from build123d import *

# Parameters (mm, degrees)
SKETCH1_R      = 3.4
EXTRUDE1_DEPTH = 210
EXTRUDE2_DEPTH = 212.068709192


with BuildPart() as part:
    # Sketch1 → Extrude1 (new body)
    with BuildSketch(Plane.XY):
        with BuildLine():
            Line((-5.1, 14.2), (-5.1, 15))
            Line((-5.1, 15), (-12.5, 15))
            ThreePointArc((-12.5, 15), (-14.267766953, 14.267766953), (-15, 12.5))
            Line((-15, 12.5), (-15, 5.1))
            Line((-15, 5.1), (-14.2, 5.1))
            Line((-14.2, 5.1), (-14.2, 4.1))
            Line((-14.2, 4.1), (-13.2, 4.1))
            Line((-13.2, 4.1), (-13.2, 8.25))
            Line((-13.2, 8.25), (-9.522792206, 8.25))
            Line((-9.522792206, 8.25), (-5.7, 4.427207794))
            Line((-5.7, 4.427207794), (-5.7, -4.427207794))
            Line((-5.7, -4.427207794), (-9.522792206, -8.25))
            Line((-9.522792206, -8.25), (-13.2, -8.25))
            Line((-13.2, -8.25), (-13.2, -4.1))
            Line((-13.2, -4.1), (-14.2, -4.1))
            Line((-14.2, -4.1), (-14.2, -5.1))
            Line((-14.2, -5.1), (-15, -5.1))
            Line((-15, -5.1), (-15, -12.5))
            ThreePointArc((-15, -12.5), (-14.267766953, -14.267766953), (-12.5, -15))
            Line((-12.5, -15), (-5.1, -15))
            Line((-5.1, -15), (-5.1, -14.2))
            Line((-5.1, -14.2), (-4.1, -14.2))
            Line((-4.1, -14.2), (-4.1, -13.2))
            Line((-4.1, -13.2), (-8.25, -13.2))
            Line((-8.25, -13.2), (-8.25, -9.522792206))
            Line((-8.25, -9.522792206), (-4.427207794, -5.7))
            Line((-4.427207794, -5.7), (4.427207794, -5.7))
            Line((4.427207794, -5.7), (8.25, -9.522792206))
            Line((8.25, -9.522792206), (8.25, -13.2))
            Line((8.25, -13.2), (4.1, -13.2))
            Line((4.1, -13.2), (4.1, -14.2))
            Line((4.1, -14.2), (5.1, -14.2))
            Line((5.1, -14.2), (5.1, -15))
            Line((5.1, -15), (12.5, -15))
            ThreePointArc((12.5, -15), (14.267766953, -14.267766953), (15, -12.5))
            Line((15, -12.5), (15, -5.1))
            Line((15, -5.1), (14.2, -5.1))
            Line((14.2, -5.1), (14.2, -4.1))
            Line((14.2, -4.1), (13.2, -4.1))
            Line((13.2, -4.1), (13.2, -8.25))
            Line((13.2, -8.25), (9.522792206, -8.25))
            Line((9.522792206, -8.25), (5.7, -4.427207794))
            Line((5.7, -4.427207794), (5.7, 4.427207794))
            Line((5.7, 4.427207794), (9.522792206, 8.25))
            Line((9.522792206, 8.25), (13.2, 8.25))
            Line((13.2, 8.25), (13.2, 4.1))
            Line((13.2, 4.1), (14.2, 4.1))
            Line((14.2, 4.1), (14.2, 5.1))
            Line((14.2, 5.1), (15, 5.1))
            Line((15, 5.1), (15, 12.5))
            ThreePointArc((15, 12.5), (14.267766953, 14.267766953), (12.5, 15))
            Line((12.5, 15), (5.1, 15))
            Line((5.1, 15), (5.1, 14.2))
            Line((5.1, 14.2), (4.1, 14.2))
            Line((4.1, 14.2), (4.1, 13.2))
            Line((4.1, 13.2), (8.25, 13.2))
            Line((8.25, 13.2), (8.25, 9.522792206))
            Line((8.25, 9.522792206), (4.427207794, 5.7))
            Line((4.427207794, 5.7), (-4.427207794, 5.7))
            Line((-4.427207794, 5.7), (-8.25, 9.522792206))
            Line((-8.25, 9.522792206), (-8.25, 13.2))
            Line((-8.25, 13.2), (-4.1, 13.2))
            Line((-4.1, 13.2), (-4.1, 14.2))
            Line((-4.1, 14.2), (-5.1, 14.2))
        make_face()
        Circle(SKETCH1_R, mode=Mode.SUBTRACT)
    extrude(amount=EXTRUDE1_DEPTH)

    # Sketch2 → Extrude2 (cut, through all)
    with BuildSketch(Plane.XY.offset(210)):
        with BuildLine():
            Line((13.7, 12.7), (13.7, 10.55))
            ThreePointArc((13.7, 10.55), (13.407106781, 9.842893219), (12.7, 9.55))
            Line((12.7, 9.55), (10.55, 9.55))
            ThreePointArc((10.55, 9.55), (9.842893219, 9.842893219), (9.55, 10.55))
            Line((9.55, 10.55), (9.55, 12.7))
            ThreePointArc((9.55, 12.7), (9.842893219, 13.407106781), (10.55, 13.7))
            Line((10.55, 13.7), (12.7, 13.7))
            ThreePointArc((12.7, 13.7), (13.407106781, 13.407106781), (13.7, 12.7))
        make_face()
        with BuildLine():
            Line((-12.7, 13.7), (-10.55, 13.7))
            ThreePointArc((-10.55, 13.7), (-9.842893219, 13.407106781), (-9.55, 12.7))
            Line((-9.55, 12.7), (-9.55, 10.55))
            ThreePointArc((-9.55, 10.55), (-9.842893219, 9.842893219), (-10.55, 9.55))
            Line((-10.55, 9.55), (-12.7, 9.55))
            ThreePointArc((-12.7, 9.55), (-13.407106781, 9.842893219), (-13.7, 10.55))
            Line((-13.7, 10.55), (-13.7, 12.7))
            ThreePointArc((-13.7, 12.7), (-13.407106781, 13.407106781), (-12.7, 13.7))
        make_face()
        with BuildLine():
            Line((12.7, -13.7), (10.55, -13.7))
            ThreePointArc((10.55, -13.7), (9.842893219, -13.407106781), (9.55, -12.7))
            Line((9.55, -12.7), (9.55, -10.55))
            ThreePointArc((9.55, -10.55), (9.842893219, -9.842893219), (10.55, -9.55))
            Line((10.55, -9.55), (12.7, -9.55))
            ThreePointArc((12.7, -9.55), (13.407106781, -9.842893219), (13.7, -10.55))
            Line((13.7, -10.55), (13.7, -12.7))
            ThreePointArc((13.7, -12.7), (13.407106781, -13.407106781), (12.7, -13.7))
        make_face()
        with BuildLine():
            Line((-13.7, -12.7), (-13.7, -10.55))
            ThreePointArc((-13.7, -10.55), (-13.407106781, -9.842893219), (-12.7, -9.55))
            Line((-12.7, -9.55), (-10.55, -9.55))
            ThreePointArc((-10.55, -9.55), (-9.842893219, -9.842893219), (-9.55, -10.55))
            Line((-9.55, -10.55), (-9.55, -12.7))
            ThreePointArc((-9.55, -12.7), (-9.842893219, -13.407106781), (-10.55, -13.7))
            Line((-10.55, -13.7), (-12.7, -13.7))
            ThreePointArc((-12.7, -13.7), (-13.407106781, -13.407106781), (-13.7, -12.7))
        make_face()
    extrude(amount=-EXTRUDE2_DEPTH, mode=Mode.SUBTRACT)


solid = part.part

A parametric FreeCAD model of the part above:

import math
import FreeCAD as App
import Part
import Sketcher

doc = App.newDocument("Part")
params = doc.addObject("Spreadsheet::Sheet", "Params")
for row, (alias, value) in enumerate([
    ("sketch1_diameter", "6.8 mm"),
    ("sketch1_radius", "2.5 mm"),
    ("sketch1_width", "1 mm"),
    ("sketch1_width2", "7.4 mm"),
    ("sketch1_width3", "0.8 mm"),
    ("pad1_length", "210 mm"),
    ("sketch2_radius", "1 mm"),
    ("sketch2_width", "2.15 mm"),
], start=1):
    params.set(f"A{row}", alias)
    params.set(f"B{row}", "=" + value)
    params.setAlias(f"B{row}", alias)

body = doc.addObject("PartDesign::Body", "Body")

# Sketch on XY plane
sketch1 = doc.addObject("Sketcher::SketchObject", "Sketch")
body.addObject(sketch1)
sketch1.AttachmentSupport = (doc.XY_Plane, [""])
sketch1.MapMode = "FlatFace"
sketch1.addGeometry(Part.LineSegment(App.Vector(-5.1, 14.2, 0), App.Vector(-5.1, 15, 0)), False)
sketch1.addGeometry(Part.LineSegment(App.Vector(-5.1, 15, 0), App.Vector(-12.5, 15, 0)), False)
sketch1.addGeometry(Part.ArcOfCircle(Part.Circle(App.Vector(-12.5, 12.5, 0), App.Vector(0, 0, 1), 2.5), math.radians(90), math.radians(180)), False)
sketch1.addGeometry(Part.LineSegment(App.Vector(-15, 12.5, 0), App.Vector(-15, 5.1, 0)), False)
sketch1.addGeometry(Part.LineSegment(App.Vector(-15, 5.1, 0), App.Vector(-14.2, 5.1, 0)), False)
sketch1.addGeometry(Part.LineSegment(App.Vector(-14.2, 5.1, 0), App.Vector(-14.2, 4.1, 0)), False)
sketch1.addGeometry(Part.LineSegment(App.Vector(-14.2, 4.1, 0), App.Vector(-13.2, 4.1, 0)), False)
sketch1.addGeometry(Part.LineSegment(App.Vector(-13.2, 4.1, 0), App.Vector(-13.2, 8.25, 0)), False)
sketch1.addGeometry(Part.LineSegment(App.Vector(-13.2, 8.25, 0), App.Vector(-9.522792, 8.25, 0)), False)
sketch1.addGeometry(Part.LineSegment(App.Vector(-9.522792, 8.25, 0), App.Vector(-5.7, 4.427208, 0)), False)
sketch1.addGeometry(Part.LineSegment(App.Vector(-5.7, 4.427208, 0), App.Vector(-5.7, -4.427208, 0)), False)
sketch1.addGeometry(Part.LineSegment(App.Vector(-5.7, -4.427208, 0), App.Vector(-9.522792, -8.25, 0)), False)
sketch1.addGeometry(Part.LineSegment(App.Vector(-9.522792, -8.25, 0), App.Vector(-13.2, -8.25, 0)), False)
sketch1.addGeometry(Part.LineSegment(App.Vector(-13.2, -8.25, 0), App.Vector(-13.2, -4.1, 0)), False)
sketch1.addGeometry(Part.LineSegment(App.Vector(-13.2, -4.1, 0), App.Vector(-14.2, -4.1, 0)), False)
sketch1.addGeometry(Part.LineSegment(App.Vector(-14.2, -4.1, 0), App.Vector(-14.2, -5.1, 0)), False)
sketch1.addGeometry(Part.LineSegment(App.Vector(-14.2, -5.1, 0), App.Vector(-15, -5.1, 0)), False)
sketch1.addGeometry(Part.LineSegment(App.Vector(-15, -5.1, 0), App.Vector(-15, -12.5, 0)), False)
sketch1.addGeometry(Part.ArcOfCircle(Part.Circle(App.Vector(-12.5, -12.5, 0), App.Vector(0, 0, 1), 2.5), math.radians(180), math.radians(270)), False)
sketch1.addGeometry(Part.LineSegment(App.Vector(-12.5, -15, 0), App.Vector(-5.1, -15, 0)), False)
sketch1.addGeometry(Part.LineSegment(App.Vector(-5.1, -15, 0), App.Vector(-5.1, -14.2, 0)), False)
sketch1.addGeometry(Part.LineSegment(App.Vector(-5.1, -14.2, 0), App.Vector(-4.1, -14.2, 0)), False)
sketch1.addGeometry(Part.LineSegment(App.Vector(-4.1, -14.2, 0), App.Vector(-4.1, -13.2, 0)), False)
sketch1.addGeometry(Part.LineSegment(App.Vector(-4.1, -13.2, 0), App.Vector(-8.25, -13.2, 0)), False)
sketch1.addGeometry(Part.LineSegment(App.Vector(-8.25, -13.2, 0), App.Vector(-8.25, -9.522792, 0)), False)
sketch1.addGeometry(Part.LineSegment(App.Vector(-8.25, -9.522792, 0), App.Vector(-4.427208, -5.7, 0)), False)
sketch1.addGeometry(Part.LineSegment(App.Vector(-4.427208, -5.7, 0), App.Vector(4.427208, -5.7, 0)), False)
sketch1.addGeometry(Part.LineSegment(App.Vector(4.427208, -5.7, 0), App.Vector(8.25, -9.522792, 0)), False)
sketch1.addGeometry(Part.LineSegment(App.Vector(8.25, -9.522792, 0), App.Vector(8.25, -13.2, 0)), False)
sketch1.addGeometry(Part.LineSegment(App.Vector(8.25, -13.2, 0), App.Vector(4.1, -13.2, 0)), False)
sketch1.addGeometry(Part.LineSegment(App.Vector(4.1, -13.2, 0), App.Vector(4.1, -14.2, 0)), False)
sketch1.addGeometry(Part.LineSegment(App.Vector(4.1, -14.2, 0), App.Vector(5.1, -14.2, 0)), False)
sketch1.addGeometry(Part.LineSegment(App.Vector(5.1, -14.2, 0), App.Vector(5.1, -15, 0)), False)
sketch1.addGeometry(Part.LineSegment(App.Vector(5.1, -15, 0), App.Vector(12.5, -15, 0)), False)
sketch1.addGeometry(Part.ArcOfCircle(Part.Circle(App.Vector(12.5, -12.5, 0), App.Vector(0, 0, 1), 2.5), math.radians(-90), math.radians(0)), False)
sketch1.addGeometry(Part.LineSegment(App.Vector(15, -12.5, 0), App.Vector(15, -5.1, 0)), False)
sketch1.addGeometry(Part.LineSegment(App.Vector(15, -5.1, 0), App.Vector(14.2, -5.1, 0)), False)
sketch1.addGeometry(Part.LineSegment(App.Vector(14.2, -5.1, 0), App.Vector(14.2, -4.1, 0)), False)
sketch1.addGeometry(Part.LineSegment(App.Vector(14.2, -4.1, 0), App.Vector(13.2, -4.1, 0)), False)
sketch1.addGeometry(Part.LineSegment(App.Vector(13.2, -4.1, 0), App.Vector(13.2, -8.25, 0)), False)
sketch1.addGeometry(Part.LineSegment(App.Vector(13.2, -8.25, 0), App.Vector(9.522792, -8.25, 0)), False)
sketch1.addGeometry(Part.LineSegment(App.Vector(9.522792, -8.25, 0), App.Vector(5.7, -4.427208, 0)), False)
sketch1.addGeometry(Part.LineSegment(App.Vector(5.7, -4.427208, 0), App.Vector(5.7, 4.427208, 0)), False)
sketch1.addGeometry(Part.LineSegment(App.Vector(5.7, 4.427208, 0), App.Vector(9.522792, 8.25, 0)), False)
sketch1.addGeometry(Part.LineSegment(App.Vector(9.522792, 8.25, 0), App.Vector(13.2, 8.25, 0)), False)
sketch1.addGeometry(Part.LineSegment(App.Vector(13.2, 8.25, 0), App.Vector(13.2, 4.1, 0)), False)
sketch1.addGeometry(Part.LineSegment(App.Vector(13.2, 4.1, 0), App.Vector(14.2, 4.1, 0)), False)
sketch1.addGeometry(Part.LineSegment(App.Vector(14.2, 4.1, 0), App.Vector(14.2, 5.1, 0)), False)
sketch1.addGeometry(Part.LineSegment(App.Vector(14.2, 5.1, 0), App.Vector(15, 5.1, 0)), False)
sketch1.addGeometry(Part.LineSegment(App.Vector(15, 5.1, 0), App.Vector(15, 12.5, 0)), False)
sketch1.addGeometry(Part.ArcOfCircle(Part.Circle(App.Vector(12.5, 12.5, 0), App.Vector(0, 0, 1), 2.5), math.radians(0), math.radians(90)), False)
sketch1.addGeometry(Part.LineSegment(App.Vector(12.5, 15, 0), App.Vector(5.1, 15, 0)), False)
sketch1.addGeometry(Part.LineSegment(App.Vector(5.1, 15, 0), App.Vector(5.1, 14.2, 0)), False)
sketch1.addGeometry(Part.LineSegment(App.Vector(5.1, 14.2, 0), App.Vector(4.1, 14.2, 0)), False)
sketch1.addGeometry(Part.LineSegment(App.Vector(4.1, 14.2, 0), App.Vector(4.1, 13.2, 0)), False)
sketch1.addGeometry(Part.LineSegment(App.Vector(4.1, 13.2, 0), App.Vector(8.25, 13.2, 0)), False)
sketch1.addGeometry(Part.LineSegment(App.Vector(8.25, 13.2, 0), App.Vector(8.25, 9.522792, 0)), False)
sketch1.addGeometry(Part.LineSegment(App.Vector(8.25, 9.522792, 0), App.Vector(4.427208, 5.7, 0)), False)
sketch1.addGeometry(Part.LineSegment(App.Vector(4.427208, 5.7, 0), App.Vector(-4.427208, 5.7, 0)), False)
sketch1.addGeometry(Part.LineSegment(App.Vector(-4.427208, 5.7, 0), App.Vector(-8.25, 9.522792, 0)), False)
sketch1.addGeometry(Part.LineSegment(App.Vector(-8.25, 9.522792, 0), App.Vector(-8.25, 13.2, 0)), False)
sketch1.addGeometry(Part.LineSegment(App.Vector(-8.25, 13.2, 0), App.Vector(-4.1, 13.2, 0)), False)
sketch1.addGeometry(Part.LineSegment(App.Vector(-4.1, 13.2, 0), App.Vector(-4.1, 14.2, 0)), False)
sketch1.addGeometry(Part.LineSegment(App.Vector(-4.1, 14.2, 0), App.Vector(-5.1, 14.2, 0)), False)
sketch1.addGeometry(Part.Circle(App.Vector(0, 0, 0), App.Vector(0, 0, 1), 3.4), False)
sketch1.addConstraint(Sketcher.Constraint("Coincident", 0, 2, 1, 1))
sketch1.addConstraint(Sketcher.Constraint("Tangent", 1, 2, 2, 1))
sketch1.addConstraint(Sketcher.Constraint("Tangent", 2, 2, 3, 1))
sketch1.addConstraint(Sketcher.Constraint("Coincident", 3, 2, 4, 1))
sketch1.addConstraint(Sketcher.Constraint("Coincident", 4, 2, 5, 1))
sketch1.addConstraint(Sketcher.Constraint("Coincident", 5, 2, 6, 1))
sketch1.addConstraint(Sketcher.Constraint("Coincident", 6, 2, 7, 1))
sketch1.addConstraint(Sketcher.Constraint("Coincident", 7, 2, 8, 1))
sketch1.addConstraint(Sketcher.Constraint("Coincident", 8, 2, 9, 1))
sketch1.addConstraint(Sketcher.Constraint("Coincident", 9, 2, 10, 1))
sketch1.addConstraint(Sketcher.Constraint("Coincident", 10, 2, 11, 1))
sketch1.addConstraint(Sketcher.Constraint("Coincident", 11, 2, 12, 1))
sketch1.addConstraint(Sketcher.Constraint("Coincident", 12, 2, 13, 1))
sketch1.addConstraint(Sketcher.Constraint("Coincident", 13, 2, 14, 1))
sketch1.addConstraint(Sketcher.Constraint("Coincident", 14, 2, 15, 1))
sketch1.addConstraint(Sketcher.Constraint("Coincident", 15, 2, 16, 1))
sketch1.addConstraint(Sketcher.Constraint("Coincident", 16, 2, 17, 1))
sketch1.addConstraint(Sketcher.Constraint("Tangent", 17, 2, 18, 1))
sketch1.addConstraint(Sketcher.Constraint("Tangent", 18, 2, 19, 1))
sketch1.addConstraint(Sketcher.Constraint("Coincident", 19, 2, 20, 1))
sketch1.addConstraint(Sketcher.Constraint("Coincident", 20, 2, 21, 1))
sketch1.addConstraint(Sketcher.Constraint("Coincident", 21, 2, 22, 1))
sketch1.addConstraint(Sketcher.Constraint("Coincident", 22, 2, 23, 1))
sketch1.addConstraint(Sketcher.Constraint("Coincident", 23, 2, 24, 1))
sketch1.addConstraint(Sketcher.Constraint("Coincident", 24, 2, 25, 1))
sketch1.addConstraint(Sketcher.Constraint("Coincident", 25, 2, 26, 1))
sketch1.addConstraint(Sketcher.Constraint("Coincident", 26, 2, 27, 1))
sketch1.addConstraint(Sketcher.Constraint("Coincident", 27, 2, 28, 1))
sketch1.addConstraint(Sketcher.Constraint("Coincident", 28, 2, 29, 1))
sketch1.addConstraint(Sketcher.Constraint("Coincident", 29, 2, 30, 1))
sketch1.addConstraint(Sketcher.Constraint("Coincident", 30, 2, 31, 1))
sketch1.addConstraint(Sketcher.Constraint("Coincident", 31, 2, 32, 1))
sketch1.addConstraint(Sketcher.Constraint("Coincident", 32, 2, 33, 1))
sketch1.addConstraint(Sketcher.Constraint("Tangent", 33, 2, 34, 1))
sketch1.addConstraint(Sketcher.Constraint("Tangent", 34, 2, 35, 1))
sketch1.addConstraint(Sketcher.Constraint("Coincident", 35, 2, 36, 1))
sketch1.addConstraint(Sketcher.Constraint("Coincident", 36, 2, 37, 1))
sketch1.addConstraint(Sketcher.Constraint("Coincident", 37, 2, 38, 1))
sketch1.addConstraint(Sketcher.Constraint("Coincident", 38, 2, 39, 1))
sketch1.addConstraint(Sketcher.Constraint("Coincident", 39, 2, 40, 1))
sketch1.addConstraint(Sketcher.Constraint("Coincident", 40, 2, 41, 1))
sketch1.addConstraint(Sketcher.Constraint("Coincident", 41, 2, 42, 1))
sketch1.addConstraint(Sketcher.Constraint("Coincident", 42, 2, 43, 1))
sketch1.addConstraint(Sketcher.Constraint("Coincident", 43, 2, 44, 1))
sketch1.addConstraint(Sketcher.Constraint("Coincident", 44, 2, 45, 1))
sketch1.addConstraint(Sketcher.Constraint("Coincident", 45, 2, 46, 1))
sketch1.addConstraint(Sketcher.Constraint("Coincident", 46, 2, 47, 1))
sketch1.addConstraint(Sketcher.Constraint("Coincident", 47, 2, 48, 1))
sketch1.addConstraint(Sketcher.Constraint("Coincident", 48, 2, 49, 1))
sketch1.addConstraint(Sketcher.Constraint("Tangent", 49, 2, 50, 1))
sketch1.addConstraint(Sketcher.Constraint("Tangent", 50, 2, 51, 1))
sketch1.addConstraint(Sketcher.Constraint("Coincident", 51, 2, 52, 1))
sketch1.addConstraint(Sketcher.Constraint("Coincident", 52, 2, 53, 1))
sketch1.addConstraint(Sketcher.Constraint("Coincident", 53, 2, 54, 1))
sketch1.addConstraint(Sketcher.Constraint("Coincident", 54, 2, 55, 1))
sketch1.addConstraint(Sketcher.Constraint("Coincident", 55, 2, 56, 1))
sketch1.addConstraint(Sketcher.Constraint("Coincident", 56, 2, 57, 1))
sketch1.addConstraint(Sketcher.Constraint("Coincident", 57, 2, 58, 1))
sketch1.addConstraint(Sketcher.Constraint("Coincident", 58, 2, 59, 1))
sketch1.addConstraint(Sketcher.Constraint("Coincident", 59, 2, 60, 1))
sketch1.addConstraint(Sketcher.Constraint("Coincident", 60, 2, 61, 1))
sketch1.addConstraint(Sketcher.Constraint("Coincident", 61, 2, 62, 1))
sketch1.addConstraint(Sketcher.Constraint("Coincident", 62, 2, 63, 1))
sketch1.addConstraint(Sketcher.Constraint("Coincident", 63, 2, 0, 1))
sketch1.addConstraint(Sketcher.Constraint("Vertical", 0))
sketch1.addConstraint(Sketcher.Constraint("Horizontal", 1))
sketch1.addConstraint(Sketcher.Constraint("Vertical", 3))
sketch1.addConstraint(Sketcher.Constraint("Horizontal", 4))
sketch1.addConstraint(Sketcher.Constraint("Vertical", 5))
sketch1.addConstraint(Sketcher.Constraint("Horizontal", 6))
sketch1.addConstraint(Sketcher.Constraint("Vertical", 7))
sketch1.addConstraint(Sketcher.Constraint("Horizontal", 8))
sketch1.addConstraint(Sketcher.Constraint("Vertical", 10))
sketch1.addConstraint(Sketcher.Constraint("Horizontal", 12))
sketch1.addConstraint(Sketcher.Constraint("Vertical", 13))
sketch1.addConstraint(Sketcher.Constraint("Horizontal", 14))
sketch1.addConstraint(Sketcher.Constraint("Vertical", 15))
sketch1.addConstraint(Sketcher.Constraint("Horizontal", 16))
sketch1.addConstraint(Sketcher.Constraint("Vertical", 17))
sketch1.addConstraint(Sketcher.Constraint("Horizontal", 19))
sketch1.addConstraint(Sketcher.Constraint("Vertical", 20))
sketch1.addConstraint(Sketcher.Constraint("Horizontal", 21))
sketch1.addConstraint(Sketcher.Constraint("Vertical", 22))
sketch1.addConstraint(Sketcher.Constraint("Horizontal", 23))
sketch1.addConstraint(Sketcher.Constraint("Vertical", 24))
sketch1.addConstraint(Sketcher.Constraint("Horizontal", 26))
sketch1.addConstraint(Sketcher.Constraint("Vertical", 28))
sketch1.addConstraint(Sketcher.Constraint("Horizontal", 29))
sketch1.addConstraint(Sketcher.Constraint("Vertical", 30))
sketch1.addConstraint(Sketcher.Constraint("Horizontal", 31))
sketch1.addConstraint(Sketcher.Constraint("Vertical", 32))
sketch1.addConstraint(Sketcher.Constraint("Horizontal", 33))
sketch1.addConstraint(Sketcher.Constraint("Vertical", 35))
sketch1.addConstraint(Sketcher.Constraint("Horizontal", 36))
sketch1.addConstraint(Sketcher.Constraint("Vertical", 37))
sketch1.addConstraint(Sketcher.Constraint("Horizontal", 38))
sketch1.addConstraint(Sketcher.Constraint("Vertical", 39))
sketch1.addConstraint(Sketcher.Constraint("Horizontal", 40))
sketch1.addConstraint(Sketcher.Constraint("Vertical", 42))
sketch1.addConstraint(Sketcher.Constraint("Horizontal", 44))
sketch1.addConstraint(Sketcher.Constraint("Vertical", 45))
sketch1.addConstraint(Sketcher.Constraint("Horizontal", 46))
sketch1.addConstraint(Sketcher.Constraint("Vertical", 47))
sketch1.addConstraint(Sketcher.Constraint("Horizontal", 48))
sketch1.addConstraint(Sketcher.Constraint("Vertical", 49))
sketch1.addConstraint(Sketcher.Constraint("Horizontal", 51))
sketch1.addConstraint(Sketcher.Constraint("Vertical", 52))
sketch1.addConstraint(Sketcher.Constraint("Horizontal", 53))
sketch1.addConstraint(Sketcher.Constraint("Vertical", 54))
sketch1.addConstraint(Sketcher.Constraint("Horizontal", 55))
sketch1.addConstraint(Sketcher.Constraint("Vertical", 56))
sketch1.addConstraint(Sketcher.Constraint("Horizontal", 58))
sketch1.addConstraint(Sketcher.Constraint("Vertical", 60))
sketch1.addConstraint(Sketcher.Constraint("Horizontal", 61))
sketch1.addConstraint(Sketcher.Constraint("Vertical", 62))
sketch1.addConstraint(Sketcher.Constraint("Horizontal", 63))
sketch1.addConstraint(Sketcher.Constraint("Coincident", 64, 3, -1, 1))
sketch1.addConstraint(Sketcher.Constraint("Equal", 2, 18))
sketch1.addConstraint(Sketcher.Constraint("Equal", 18, 34))
sketch1.addConstraint(Sketcher.Constraint("Equal", 34, 50))
sketch1.addConstraint(Sketcher.Constraint("Symmetric", 2, 3, 34, 3, -1, 1))
sketch1.addConstraint(Sketcher.Constraint("Symmetric", 18, 3, 50, 3, -1, 1))
sketch1.addConstraint(Sketcher.Constraint("Symmetric", 4, 2, 36, 2, -1, 1))
sketch1.addConstraint(Sketcher.Constraint("Symmetric", 6, 2, 38, 2, -1, 1))
sketch1.addConstraint(Sketcher.Constraint("Symmetric", 8, 2, 40, 2, -1, 1))
sketch1.addConstraint(Sketcher.Constraint("Symmetric", 9, 2, 41, 2, -1, 1))
sketch1.addConstraint(Sketcher.Constraint("Symmetric", 11, 2, 43, 2, -1, 1))
sketch1.addConstraint(Sketcher.Constraint("Symmetric", 13, 2, 45, 2, -1, 1))
sketch1.addConstraint(Sketcher.Constraint("Symmetric", 15, 2, 47, 2, -1, 1))
sketch1.addConstraint(Sketcher.Constraint("Symmetric", 20, 2, 52, 2, -1, 1))
sketch1.addConstraint(Sketcher.Constraint("Symmetric", 22, 2, 54, 2, -1, 1))
sketch1.addConstraint(Sketcher.Constraint("Symmetric", 24, 2, 56, 2, -1, 1))
sketch1.addConstraint(Sketcher.Constraint("Symmetric", 25, 2, 57, 2, -1, 1))
sketch1.addConstraint(Sketcher.Constraint("Symmetric", 27, 2, 59, 2, -1, 1))
sketch1.addConstraint(Sketcher.Constraint("Symmetric", 29, 2, 61, 2, -1, 1))
sketch1.addConstraint(Sketcher.Constraint("Symmetric", 31, 2, 63, 2, -1, 1))
sketch1.addConstraint(Sketcher.Constraint("Symmetric", 18, 3, 34, 3, -2))
sketch1.addConstraint(Sketcher.Constraint("Symmetric", 24, 2, 27, 2, -2))
sketch1.addConstraint(Sketcher.Constraint("Symmetric", 22, 2, 29, 2, -2))
sketch1.addConstraint(Sketcher.Constraint("Symmetric", 20, 2, 31, 2, -2))
sketch1.addConstraint(Sketcher.Constraint("Symmetric", 15, 2, 36, 2, -2))
sketch1.addConstraint(Sketcher.Constraint("Symmetric", 13, 2, 38, 2, -2))
sketch1.addConstraint(Sketcher.Constraint("Symmetric", 11, 2, 40, 2, -2))
sketch1.addConstraint(Sketcher.Constraint("Perpendicular", 9, 11))
sketch1.addConstraint(Sketcher.Constraint("Parallel", 11, 25))
sketch1.addConstraint(Sketcher.Constraint("Perpendicular", 25, 27))
sketch1.addConstraint(Sketcher.Constraint("Perpendicular", 41, 43))
sketch1.addConstraint(Sketcher.Constraint("Perpendicular", 57, 59))
sketch1.addConstraint(Sketcher.Constraint("Horizontal", 10, 2, 41, 2))
sketch1.addConstraint(Sketcher.Constraint("Equal", 14, 21))
sketch1.addConstraint(Sketcher.Constraint("Equal", 48, 0))
sketch1.addConstraint(Sketcher.Constraint("Equal", 51, 3))
sketch1.addConstraint(Sketcher.Constraint("Equal", 63, 5))
sketch1.addConstraint(Sketcher.Constraint("Equal", 61, 7))
sketch1.addConstraint(Sketcher.Constraint("Equal", 58, 10))
sketch1.addConstraint(Sketcher.Constraint("Equal", 15, 22))
sketch1.addConstraint(Sketcher.Constraint("Equal", 44, 24))
sketch1.addConstraint(Sketcher.Constraint("Equal", 11, 25))
sketch1.addConstraint(Sketcher.Constraint("Diameter", 64, 6.8))
sketch1.addConstraint(Sketcher.Constraint("Radius", 2, 2.5))
sketch1.addConstraint(Sketcher.Constraint("DistanceX", 6, 1, 6, 2, 1.0))
sketch1.addConstraint(Sketcher.Constraint("DistanceX", 1, 2, 1, 1, 7.4))
sketch1.addConstraint(Sketcher.Constraint("DistanceX", 4, 1, 4, 2, 0.8))
sketch1.addConstraint(Sketcher.Constraint("DistanceY", -1, 1, 0, 2, 15.0))
sketch1.addConstraint(Sketcher.Constraint("DistanceX", 23, 2, 23, 1, 4.15))
sketch1.addConstraint(Sketcher.Constraint("DistanceX", 9, 2, -1, 1, 5.7))
sketch1.addConstraint(Sketcher.Constraint("DistanceX", 8, 1, 8, 2, 3.677208))
sketch1.setExpression("Constraints[158]", "Params.sketch1_diameter")
sketch1.setExpression("Constraints[159]", "Params.sketch1_radius")
sketch1.setExpression("Constraints[160]", "Params.sketch1_width")
sketch1.setExpression("Constraints[161]", "Params.sketch1_width2")
sketch1.setExpression("Constraints[162]", "Params.sketch1_width3")
pad1 = doc.addObject("PartDesign::Pad", "Pad")
body.addObject(pad1)
pad1.Profile = sketch1
pad1.setExpression("Length", "Params.pad1_length")

# Sketch on XY plane
sketch2 = doc.addObject("Sketcher::SketchObject", "Sketch001")
body.addObject(sketch2)
sketch2.AttachmentSupport = (doc.XY_Plane, [""])
sketch2.MapMode = "FlatFace"
sketch2.AttachmentOffset = App.Placement(App.Vector(0, 0, 210), App.Rotation())
sketch2.addGeometry(Part.LineSegment(App.Vector(13.7, 10.55, 0), App.Vector(13.7, 12.7, 0)), False)
sketch2.addGeometry(Part.ArcOfCircle(Part.Circle(App.Vector(12.7, 12.7, 0), App.Vector(0, 0, 1), 1), math.radians(0), math.radians(90)), False)
sketch2.addGeometry(Part.LineSegment(App.Vector(12.7, 13.7, 0), App.Vector(10.55, 13.7, 0)), False)
sketch2.addGeometry(Part.ArcOfCircle(Part.Circle(App.Vector(10.55, 12.7, 0), App.Vector(0, 0, 1), 1), math.radians(90), math.radians(180)), False)
sketch2.addGeometry(Part.LineSegment(App.Vector(9.55, 12.7, 0), App.Vector(9.55, 10.55, 0)), False)
sketch2.addGeometry(Part.ArcOfCircle(Part.Circle(App.Vector(10.55, 10.55, 0), App.Vector(0, 0, 1), 1), math.radians(-180), math.radians(-90)), False)
sketch2.addGeometry(Part.LineSegment(App.Vector(10.55, 9.55, 0), App.Vector(12.7, 9.55, 0)), False)
sketch2.addGeometry(Part.ArcOfCircle(Part.Circle(App.Vector(12.7, 10.55, 0), App.Vector(0, 0, 1), 1), math.radians(-90), math.radians(0)), False)
sketch2.addGeometry(Part.LineSegment(App.Vector(-10.55, 13.7, 0), App.Vector(-12.7, 13.7, 0)), False)
sketch2.addGeometry(Part.ArcOfCircle(Part.Circle(App.Vector(-12.7, 12.7, 0), App.Vector(0, 0, 1), 1), math.radians(90), math.radians(180)), False)
sketch2.addGeometry(Part.LineSegment(App.Vector(-13.7, 12.7, 0), App.Vector(-13.7, 10.55, 0)), False)
sketch2.addGeometry(Part.ArcOfCircle(Part.Circle(App.Vector(-12.7, 10.55, 0), App.Vector(0, 0, 1), 1), math.radians(-180), math.radians(-90)), False)
sketch2.addGeometry(Part.LineSegment(App.Vector(-12.7, 9.55, 0), App.Vector(-10.55, 9.55, 0)), False)
sketch2.addGeometry(Part.ArcOfCircle(Part.Circle(App.Vector(-10.55, 10.55, 0), App.Vector(0, 0, 1), 1), math.radians(-90), math.radians(0)), False)
sketch2.addGeometry(Part.LineSegment(App.Vector(-9.55, 10.55, 0), App.Vector(-9.55, 12.7, 0)), False)
sketch2.addGeometry(Part.ArcOfCircle(Part.Circle(App.Vector(-10.55, 12.7, 0), App.Vector(0, 0, 1), 1), math.radians(0), math.radians(90)), False)
sketch2.addGeometry(Part.LineSegment(App.Vector(10.55, -13.7, 0), App.Vector(12.7, -13.7, 0)), False)
sketch2.addGeometry(Part.ArcOfCircle(Part.Circle(App.Vector(12.7, -12.7, 0), App.Vector(0, 0, 1), 1), math.radians(-90), math.radians(0)), False)
sketch2.addGeometry(Part.LineSegment(App.Vector(13.7, -12.7, 0), App.Vector(13.7, -10.55, 0)), False)
sketch2.addGeometry(Part.ArcOfCircle(Part.Circle(App.Vector(12.7, -10.55, 0), App.Vector(0, 0, 1), 1), math.radians(0), math.radians(90)), False)
sketch2.addGeometry(Part.LineSegment(App.Vector(12.7, -9.55, 0), App.Vector(10.55, -9.55, 0)), False)
sketch2.addGeometry(Part.ArcOfCircle(Part.Circle(App.Vector(10.55, -10.55, 0), App.Vector(0, 0, 1), 1), math.radians(90), math.radians(180)), False)
sketch2.addGeometry(Part.LineSegment(App.Vector(9.55, -10.55, 0), App.Vector(9.55, -12.7, 0)), False)
sketch2.addGeometry(Part.ArcOfCircle(Part.Circle(App.Vector(10.55, -12.7, 0), App.Vector(0, 0, 1), 1), math.radians(-180), math.radians(-90)), False)
sketch2.addGeometry(Part.LineSegment(App.Vector(-13.7, -10.55, 0), App.Vector(-13.7, -12.7, 0)), False)
sketch2.addGeometry(Part.ArcOfCircle(Part.Circle(App.Vector(-12.7, -12.7, 0), App.Vector(0, 0, 1), 1), math.radians(-180), math.radians(-90)), False)
sketch2.addGeometry(Part.LineSegment(App.Vector(-12.7, -13.7, 0), App.Vector(-10.55, -13.7, 0)), False)
sketch2.addGeometry(Part.ArcOfCircle(Part.Circle(App.Vector(-10.55, -12.7, 0), App.Vector(0, 0, 1), 1), math.radians(-90), math.radians(0)), False)
sketch2.addGeometry(Part.LineSegment(App.Vector(-9.55, -12.7, 0), App.Vector(-9.55, -10.55, 0)), False)
sketch2.addGeometry(Part.ArcOfCircle(Part.Circle(App.Vector(-10.55, -10.55, 0), App.Vector(0, 0, 1), 1), math.radians(0), math.radians(90)), False)
sketch2.addGeometry(Part.LineSegment(App.Vector(-10.55, -9.55, 0), App.Vector(-12.7, -9.55, 0)), False)
sketch2.addGeometry(Part.ArcOfCircle(Part.Circle(App.Vector(-12.7, -10.55, 0), App.Vector(0, 0, 1), 1), math.radians(90), math.radians(180)), False)
sketch2.addConstraint(Sketcher.Constraint("Tangent", 0, 2, 1, 1))
sketch2.addConstraint(Sketcher.Constraint("Tangent", 1, 2, 2, 1))
sketch2.addConstraint(Sketcher.Constraint("Tangent", 2, 2, 3, 1))
sketch2.addConstraint(Sketcher.Constraint("Tangent", 3, 2, 4, 1))
sketch2.addConstraint(Sketcher.Constraint("Tangent", 4, 2, 5, 1))
sketch2.addConstraint(Sketcher.Constraint("Tangent", 5, 2, 6, 1))
sketch2.addConstraint(Sketcher.Constraint("Tangent", 6, 2, 7, 1))
sketch2.addConstraint(Sketcher.Constraint("Tangent", 7, 2, 0, 1))
sketch2.addConstraint(Sketcher.Constraint("Tangent", 8, 2, 9, 1))
sketch2.addConstraint(Sketcher.Constraint("Tangent", 9, 2, 10, 1))
sketch2.addConstraint(Sketcher.Constraint("Tangent", 10, 2, 11, 1))
sketch2.addConstraint(Sketcher.Constraint("Tangent", 11, 2, 12, 1))
sketch2.addConstraint(Sketcher.Constraint("Tangent", 12, 2, 13, 1))
sketch2.addConstraint(Sketcher.Constraint("Tangent", 13, 2, 14, 1))
sketch2.addConstraint(Sketcher.Constraint("Tangent", 14, 2, 15, 1))
sketch2.addConstraint(Sketcher.Constraint("Tangent", 15, 2, 8, 1))
sketch2.addConstraint(Sketcher.Constraint("Tangent", 16, 2, 17, 1))
sketch2.addConstraint(Sketcher.Constraint("Tangent", 17, 2, 18, 1))
sketch2.addConstraint(Sketcher.Constraint("Tangent", 18, 2, 19, 1))
sketch2.addConstraint(Sketcher.Constraint("Tangent", 19, 2, 20, 1))
sketch2.addConstraint(Sketcher.Constraint("Tangent", 20, 2, 21, 1))
sketch2.addConstraint(Sketcher.Constraint("Tangent", 21, 2, 22, 1))
sketch2.addConstraint(Sketcher.Constraint("Tangent", 22, 2, 23, 1))
sketch2.addConstraint(Sketcher.Constraint("Tangent", 23, 2, 16, 1))
sketch2.addConstraint(Sketcher.Constraint("Tangent", 24, 2, 25, 1))
sketch2.addConstraint(Sketcher.Constraint("Tangent", 25, 2, 26, 1))
sketch2.addConstraint(Sketcher.Constraint("Tangent", 26, 2, 27, 1))
sketch2.addConstraint(Sketcher.Constraint("Tangent", 27, 2, 28, 1))
sketch2.addConstraint(Sketcher.Constraint("Tangent", 28, 2, 29, 1))
sketch2.addConstraint(Sketcher.Constraint("Tangent", 29, 2, 30, 1))
sketch2.addConstraint(Sketcher.Constraint("Tangent", 30, 2, 31, 1))
sketch2.addConstraint(Sketcher.Constraint("Tangent", 31, 2, 24, 1))
sketch2.addConstraint(Sketcher.Constraint("Vertical", 0))
sketch2.addConstraint(Sketcher.Constraint("Horizontal", 2))
sketch2.addConstraint(Sketcher.Constraint("Vertical", 4))
sketch2.addConstraint(Sketcher.Constraint("Horizontal", 6))
sketch2.addConstraint(Sketcher.Constraint("Horizontal", 8))
sketch2.addConstraint(Sketcher.Constraint("Vertical", 10))
sketch2.addConstraint(Sketcher.Constraint("Horizontal", 12))
sketch2.addConstraint(Sketcher.Constraint("Vertical", 14))
sketch2.addConstraint(Sketcher.Constraint("Horizontal", 16))
sketch2.addConstraint(Sketcher.Constraint("Vertical", 18))
sketch2.addConstraint(Sketcher.Constraint("Horizontal", 20))
sketch2.addConstraint(Sketcher.Constraint("Vertical", 22))
sketch2.addConstraint(Sketcher.Constraint("Vertical", 24))
sketch2.addConstraint(Sketcher.Constraint("Horizontal", 26))
sketch2.addConstraint(Sketcher.Constraint("Vertical", 28))
sketch2.addConstraint(Sketcher.Constraint("Horizontal", 30))
sketch2.addConstraint(Sketcher.Constraint("Equal", 1, 3))
sketch2.addConstraint(Sketcher.Constraint("Equal", 3, 5))
sketch2.addConstraint(Sketcher.Constraint("Equal", 5, 7))
sketch2.addConstraint(Sketcher.Constraint("Equal", 7, 9))
sketch2.addConstraint(Sketcher.Constraint("Equal", 9, 11))
sketch2.addConstraint(Sketcher.Constraint("Equal", 11, 13))
sketch2.addConstraint(Sketcher.Constraint("Equal", 13, 15))
sketch2.addConstraint(Sketcher.Constraint("Equal", 15, 17))
sketch2.addConstraint(Sketcher.Constraint("Equal", 17, 19))
sketch2.addConstraint(Sketcher.Constraint("Equal", 19, 21))
sketch2.addConstraint(Sketcher.Constraint("Equal", 21, 23))
sketch2.addConstraint(Sketcher.Constraint("Equal", 23, 25))
sketch2.addConstraint(Sketcher.Constraint("Equal", 25, 27))
sketch2.addConstraint(Sketcher.Constraint("Equal", 27, 29))
sketch2.addConstraint(Sketcher.Constraint("Equal", 29, 31))
sketch2.addConstraint(Sketcher.Constraint("Symmetric", 9, 3, 17, 3, -1, 1))
sketch2.addConstraint(Sketcher.Constraint("Symmetric", 13, 3, 21, 3, -1, 1))
sketch2.addConstraint(Sketcher.Constraint("Symmetric", 1, 3, 25, 3, -1, 1))
sketch2.addConstraint(Sketcher.Constraint("Symmetric", 5, 3, 29, 3, -1, 1))
sketch2.addConstraint(Sketcher.Constraint("Symmetric", 1, 3, 9, 3, -2))
sketch2.addConstraint(Sketcher.Constraint("Symmetric", 5, 3, 13, 3, -2))
sketch2.addConstraint(Sketcher.Constraint("Equal", 30, 0))
sketch2.addConstraint(Sketcher.Constraint("Radius", 1, 1.0))
sketch2.addConstraint(Sketcher.Constraint("DistanceX", 2, 2, 2, 1, 2.15))
sketch2.addConstraint(Sketcher.Constraint("DistanceX", -1, 1, 1, 3, 12.7))
sketch2.addConstraint(Sketcher.Constraint("DistanceY", -1, 1, 1, 3, 12.7))
sketch2.setExpression("Constraints[70]", "Params.sketch2_radius")
sketch2.setExpression("Constraints[71]", "Params.sketch2_width")
pocket1 = doc.addObject("PartDesign::Pocket", "Pocket")
body.addObject(pocket1)
pocket1.Profile = sketch2
pocket1.Type = "ThroughAll"

doc.recompute()
